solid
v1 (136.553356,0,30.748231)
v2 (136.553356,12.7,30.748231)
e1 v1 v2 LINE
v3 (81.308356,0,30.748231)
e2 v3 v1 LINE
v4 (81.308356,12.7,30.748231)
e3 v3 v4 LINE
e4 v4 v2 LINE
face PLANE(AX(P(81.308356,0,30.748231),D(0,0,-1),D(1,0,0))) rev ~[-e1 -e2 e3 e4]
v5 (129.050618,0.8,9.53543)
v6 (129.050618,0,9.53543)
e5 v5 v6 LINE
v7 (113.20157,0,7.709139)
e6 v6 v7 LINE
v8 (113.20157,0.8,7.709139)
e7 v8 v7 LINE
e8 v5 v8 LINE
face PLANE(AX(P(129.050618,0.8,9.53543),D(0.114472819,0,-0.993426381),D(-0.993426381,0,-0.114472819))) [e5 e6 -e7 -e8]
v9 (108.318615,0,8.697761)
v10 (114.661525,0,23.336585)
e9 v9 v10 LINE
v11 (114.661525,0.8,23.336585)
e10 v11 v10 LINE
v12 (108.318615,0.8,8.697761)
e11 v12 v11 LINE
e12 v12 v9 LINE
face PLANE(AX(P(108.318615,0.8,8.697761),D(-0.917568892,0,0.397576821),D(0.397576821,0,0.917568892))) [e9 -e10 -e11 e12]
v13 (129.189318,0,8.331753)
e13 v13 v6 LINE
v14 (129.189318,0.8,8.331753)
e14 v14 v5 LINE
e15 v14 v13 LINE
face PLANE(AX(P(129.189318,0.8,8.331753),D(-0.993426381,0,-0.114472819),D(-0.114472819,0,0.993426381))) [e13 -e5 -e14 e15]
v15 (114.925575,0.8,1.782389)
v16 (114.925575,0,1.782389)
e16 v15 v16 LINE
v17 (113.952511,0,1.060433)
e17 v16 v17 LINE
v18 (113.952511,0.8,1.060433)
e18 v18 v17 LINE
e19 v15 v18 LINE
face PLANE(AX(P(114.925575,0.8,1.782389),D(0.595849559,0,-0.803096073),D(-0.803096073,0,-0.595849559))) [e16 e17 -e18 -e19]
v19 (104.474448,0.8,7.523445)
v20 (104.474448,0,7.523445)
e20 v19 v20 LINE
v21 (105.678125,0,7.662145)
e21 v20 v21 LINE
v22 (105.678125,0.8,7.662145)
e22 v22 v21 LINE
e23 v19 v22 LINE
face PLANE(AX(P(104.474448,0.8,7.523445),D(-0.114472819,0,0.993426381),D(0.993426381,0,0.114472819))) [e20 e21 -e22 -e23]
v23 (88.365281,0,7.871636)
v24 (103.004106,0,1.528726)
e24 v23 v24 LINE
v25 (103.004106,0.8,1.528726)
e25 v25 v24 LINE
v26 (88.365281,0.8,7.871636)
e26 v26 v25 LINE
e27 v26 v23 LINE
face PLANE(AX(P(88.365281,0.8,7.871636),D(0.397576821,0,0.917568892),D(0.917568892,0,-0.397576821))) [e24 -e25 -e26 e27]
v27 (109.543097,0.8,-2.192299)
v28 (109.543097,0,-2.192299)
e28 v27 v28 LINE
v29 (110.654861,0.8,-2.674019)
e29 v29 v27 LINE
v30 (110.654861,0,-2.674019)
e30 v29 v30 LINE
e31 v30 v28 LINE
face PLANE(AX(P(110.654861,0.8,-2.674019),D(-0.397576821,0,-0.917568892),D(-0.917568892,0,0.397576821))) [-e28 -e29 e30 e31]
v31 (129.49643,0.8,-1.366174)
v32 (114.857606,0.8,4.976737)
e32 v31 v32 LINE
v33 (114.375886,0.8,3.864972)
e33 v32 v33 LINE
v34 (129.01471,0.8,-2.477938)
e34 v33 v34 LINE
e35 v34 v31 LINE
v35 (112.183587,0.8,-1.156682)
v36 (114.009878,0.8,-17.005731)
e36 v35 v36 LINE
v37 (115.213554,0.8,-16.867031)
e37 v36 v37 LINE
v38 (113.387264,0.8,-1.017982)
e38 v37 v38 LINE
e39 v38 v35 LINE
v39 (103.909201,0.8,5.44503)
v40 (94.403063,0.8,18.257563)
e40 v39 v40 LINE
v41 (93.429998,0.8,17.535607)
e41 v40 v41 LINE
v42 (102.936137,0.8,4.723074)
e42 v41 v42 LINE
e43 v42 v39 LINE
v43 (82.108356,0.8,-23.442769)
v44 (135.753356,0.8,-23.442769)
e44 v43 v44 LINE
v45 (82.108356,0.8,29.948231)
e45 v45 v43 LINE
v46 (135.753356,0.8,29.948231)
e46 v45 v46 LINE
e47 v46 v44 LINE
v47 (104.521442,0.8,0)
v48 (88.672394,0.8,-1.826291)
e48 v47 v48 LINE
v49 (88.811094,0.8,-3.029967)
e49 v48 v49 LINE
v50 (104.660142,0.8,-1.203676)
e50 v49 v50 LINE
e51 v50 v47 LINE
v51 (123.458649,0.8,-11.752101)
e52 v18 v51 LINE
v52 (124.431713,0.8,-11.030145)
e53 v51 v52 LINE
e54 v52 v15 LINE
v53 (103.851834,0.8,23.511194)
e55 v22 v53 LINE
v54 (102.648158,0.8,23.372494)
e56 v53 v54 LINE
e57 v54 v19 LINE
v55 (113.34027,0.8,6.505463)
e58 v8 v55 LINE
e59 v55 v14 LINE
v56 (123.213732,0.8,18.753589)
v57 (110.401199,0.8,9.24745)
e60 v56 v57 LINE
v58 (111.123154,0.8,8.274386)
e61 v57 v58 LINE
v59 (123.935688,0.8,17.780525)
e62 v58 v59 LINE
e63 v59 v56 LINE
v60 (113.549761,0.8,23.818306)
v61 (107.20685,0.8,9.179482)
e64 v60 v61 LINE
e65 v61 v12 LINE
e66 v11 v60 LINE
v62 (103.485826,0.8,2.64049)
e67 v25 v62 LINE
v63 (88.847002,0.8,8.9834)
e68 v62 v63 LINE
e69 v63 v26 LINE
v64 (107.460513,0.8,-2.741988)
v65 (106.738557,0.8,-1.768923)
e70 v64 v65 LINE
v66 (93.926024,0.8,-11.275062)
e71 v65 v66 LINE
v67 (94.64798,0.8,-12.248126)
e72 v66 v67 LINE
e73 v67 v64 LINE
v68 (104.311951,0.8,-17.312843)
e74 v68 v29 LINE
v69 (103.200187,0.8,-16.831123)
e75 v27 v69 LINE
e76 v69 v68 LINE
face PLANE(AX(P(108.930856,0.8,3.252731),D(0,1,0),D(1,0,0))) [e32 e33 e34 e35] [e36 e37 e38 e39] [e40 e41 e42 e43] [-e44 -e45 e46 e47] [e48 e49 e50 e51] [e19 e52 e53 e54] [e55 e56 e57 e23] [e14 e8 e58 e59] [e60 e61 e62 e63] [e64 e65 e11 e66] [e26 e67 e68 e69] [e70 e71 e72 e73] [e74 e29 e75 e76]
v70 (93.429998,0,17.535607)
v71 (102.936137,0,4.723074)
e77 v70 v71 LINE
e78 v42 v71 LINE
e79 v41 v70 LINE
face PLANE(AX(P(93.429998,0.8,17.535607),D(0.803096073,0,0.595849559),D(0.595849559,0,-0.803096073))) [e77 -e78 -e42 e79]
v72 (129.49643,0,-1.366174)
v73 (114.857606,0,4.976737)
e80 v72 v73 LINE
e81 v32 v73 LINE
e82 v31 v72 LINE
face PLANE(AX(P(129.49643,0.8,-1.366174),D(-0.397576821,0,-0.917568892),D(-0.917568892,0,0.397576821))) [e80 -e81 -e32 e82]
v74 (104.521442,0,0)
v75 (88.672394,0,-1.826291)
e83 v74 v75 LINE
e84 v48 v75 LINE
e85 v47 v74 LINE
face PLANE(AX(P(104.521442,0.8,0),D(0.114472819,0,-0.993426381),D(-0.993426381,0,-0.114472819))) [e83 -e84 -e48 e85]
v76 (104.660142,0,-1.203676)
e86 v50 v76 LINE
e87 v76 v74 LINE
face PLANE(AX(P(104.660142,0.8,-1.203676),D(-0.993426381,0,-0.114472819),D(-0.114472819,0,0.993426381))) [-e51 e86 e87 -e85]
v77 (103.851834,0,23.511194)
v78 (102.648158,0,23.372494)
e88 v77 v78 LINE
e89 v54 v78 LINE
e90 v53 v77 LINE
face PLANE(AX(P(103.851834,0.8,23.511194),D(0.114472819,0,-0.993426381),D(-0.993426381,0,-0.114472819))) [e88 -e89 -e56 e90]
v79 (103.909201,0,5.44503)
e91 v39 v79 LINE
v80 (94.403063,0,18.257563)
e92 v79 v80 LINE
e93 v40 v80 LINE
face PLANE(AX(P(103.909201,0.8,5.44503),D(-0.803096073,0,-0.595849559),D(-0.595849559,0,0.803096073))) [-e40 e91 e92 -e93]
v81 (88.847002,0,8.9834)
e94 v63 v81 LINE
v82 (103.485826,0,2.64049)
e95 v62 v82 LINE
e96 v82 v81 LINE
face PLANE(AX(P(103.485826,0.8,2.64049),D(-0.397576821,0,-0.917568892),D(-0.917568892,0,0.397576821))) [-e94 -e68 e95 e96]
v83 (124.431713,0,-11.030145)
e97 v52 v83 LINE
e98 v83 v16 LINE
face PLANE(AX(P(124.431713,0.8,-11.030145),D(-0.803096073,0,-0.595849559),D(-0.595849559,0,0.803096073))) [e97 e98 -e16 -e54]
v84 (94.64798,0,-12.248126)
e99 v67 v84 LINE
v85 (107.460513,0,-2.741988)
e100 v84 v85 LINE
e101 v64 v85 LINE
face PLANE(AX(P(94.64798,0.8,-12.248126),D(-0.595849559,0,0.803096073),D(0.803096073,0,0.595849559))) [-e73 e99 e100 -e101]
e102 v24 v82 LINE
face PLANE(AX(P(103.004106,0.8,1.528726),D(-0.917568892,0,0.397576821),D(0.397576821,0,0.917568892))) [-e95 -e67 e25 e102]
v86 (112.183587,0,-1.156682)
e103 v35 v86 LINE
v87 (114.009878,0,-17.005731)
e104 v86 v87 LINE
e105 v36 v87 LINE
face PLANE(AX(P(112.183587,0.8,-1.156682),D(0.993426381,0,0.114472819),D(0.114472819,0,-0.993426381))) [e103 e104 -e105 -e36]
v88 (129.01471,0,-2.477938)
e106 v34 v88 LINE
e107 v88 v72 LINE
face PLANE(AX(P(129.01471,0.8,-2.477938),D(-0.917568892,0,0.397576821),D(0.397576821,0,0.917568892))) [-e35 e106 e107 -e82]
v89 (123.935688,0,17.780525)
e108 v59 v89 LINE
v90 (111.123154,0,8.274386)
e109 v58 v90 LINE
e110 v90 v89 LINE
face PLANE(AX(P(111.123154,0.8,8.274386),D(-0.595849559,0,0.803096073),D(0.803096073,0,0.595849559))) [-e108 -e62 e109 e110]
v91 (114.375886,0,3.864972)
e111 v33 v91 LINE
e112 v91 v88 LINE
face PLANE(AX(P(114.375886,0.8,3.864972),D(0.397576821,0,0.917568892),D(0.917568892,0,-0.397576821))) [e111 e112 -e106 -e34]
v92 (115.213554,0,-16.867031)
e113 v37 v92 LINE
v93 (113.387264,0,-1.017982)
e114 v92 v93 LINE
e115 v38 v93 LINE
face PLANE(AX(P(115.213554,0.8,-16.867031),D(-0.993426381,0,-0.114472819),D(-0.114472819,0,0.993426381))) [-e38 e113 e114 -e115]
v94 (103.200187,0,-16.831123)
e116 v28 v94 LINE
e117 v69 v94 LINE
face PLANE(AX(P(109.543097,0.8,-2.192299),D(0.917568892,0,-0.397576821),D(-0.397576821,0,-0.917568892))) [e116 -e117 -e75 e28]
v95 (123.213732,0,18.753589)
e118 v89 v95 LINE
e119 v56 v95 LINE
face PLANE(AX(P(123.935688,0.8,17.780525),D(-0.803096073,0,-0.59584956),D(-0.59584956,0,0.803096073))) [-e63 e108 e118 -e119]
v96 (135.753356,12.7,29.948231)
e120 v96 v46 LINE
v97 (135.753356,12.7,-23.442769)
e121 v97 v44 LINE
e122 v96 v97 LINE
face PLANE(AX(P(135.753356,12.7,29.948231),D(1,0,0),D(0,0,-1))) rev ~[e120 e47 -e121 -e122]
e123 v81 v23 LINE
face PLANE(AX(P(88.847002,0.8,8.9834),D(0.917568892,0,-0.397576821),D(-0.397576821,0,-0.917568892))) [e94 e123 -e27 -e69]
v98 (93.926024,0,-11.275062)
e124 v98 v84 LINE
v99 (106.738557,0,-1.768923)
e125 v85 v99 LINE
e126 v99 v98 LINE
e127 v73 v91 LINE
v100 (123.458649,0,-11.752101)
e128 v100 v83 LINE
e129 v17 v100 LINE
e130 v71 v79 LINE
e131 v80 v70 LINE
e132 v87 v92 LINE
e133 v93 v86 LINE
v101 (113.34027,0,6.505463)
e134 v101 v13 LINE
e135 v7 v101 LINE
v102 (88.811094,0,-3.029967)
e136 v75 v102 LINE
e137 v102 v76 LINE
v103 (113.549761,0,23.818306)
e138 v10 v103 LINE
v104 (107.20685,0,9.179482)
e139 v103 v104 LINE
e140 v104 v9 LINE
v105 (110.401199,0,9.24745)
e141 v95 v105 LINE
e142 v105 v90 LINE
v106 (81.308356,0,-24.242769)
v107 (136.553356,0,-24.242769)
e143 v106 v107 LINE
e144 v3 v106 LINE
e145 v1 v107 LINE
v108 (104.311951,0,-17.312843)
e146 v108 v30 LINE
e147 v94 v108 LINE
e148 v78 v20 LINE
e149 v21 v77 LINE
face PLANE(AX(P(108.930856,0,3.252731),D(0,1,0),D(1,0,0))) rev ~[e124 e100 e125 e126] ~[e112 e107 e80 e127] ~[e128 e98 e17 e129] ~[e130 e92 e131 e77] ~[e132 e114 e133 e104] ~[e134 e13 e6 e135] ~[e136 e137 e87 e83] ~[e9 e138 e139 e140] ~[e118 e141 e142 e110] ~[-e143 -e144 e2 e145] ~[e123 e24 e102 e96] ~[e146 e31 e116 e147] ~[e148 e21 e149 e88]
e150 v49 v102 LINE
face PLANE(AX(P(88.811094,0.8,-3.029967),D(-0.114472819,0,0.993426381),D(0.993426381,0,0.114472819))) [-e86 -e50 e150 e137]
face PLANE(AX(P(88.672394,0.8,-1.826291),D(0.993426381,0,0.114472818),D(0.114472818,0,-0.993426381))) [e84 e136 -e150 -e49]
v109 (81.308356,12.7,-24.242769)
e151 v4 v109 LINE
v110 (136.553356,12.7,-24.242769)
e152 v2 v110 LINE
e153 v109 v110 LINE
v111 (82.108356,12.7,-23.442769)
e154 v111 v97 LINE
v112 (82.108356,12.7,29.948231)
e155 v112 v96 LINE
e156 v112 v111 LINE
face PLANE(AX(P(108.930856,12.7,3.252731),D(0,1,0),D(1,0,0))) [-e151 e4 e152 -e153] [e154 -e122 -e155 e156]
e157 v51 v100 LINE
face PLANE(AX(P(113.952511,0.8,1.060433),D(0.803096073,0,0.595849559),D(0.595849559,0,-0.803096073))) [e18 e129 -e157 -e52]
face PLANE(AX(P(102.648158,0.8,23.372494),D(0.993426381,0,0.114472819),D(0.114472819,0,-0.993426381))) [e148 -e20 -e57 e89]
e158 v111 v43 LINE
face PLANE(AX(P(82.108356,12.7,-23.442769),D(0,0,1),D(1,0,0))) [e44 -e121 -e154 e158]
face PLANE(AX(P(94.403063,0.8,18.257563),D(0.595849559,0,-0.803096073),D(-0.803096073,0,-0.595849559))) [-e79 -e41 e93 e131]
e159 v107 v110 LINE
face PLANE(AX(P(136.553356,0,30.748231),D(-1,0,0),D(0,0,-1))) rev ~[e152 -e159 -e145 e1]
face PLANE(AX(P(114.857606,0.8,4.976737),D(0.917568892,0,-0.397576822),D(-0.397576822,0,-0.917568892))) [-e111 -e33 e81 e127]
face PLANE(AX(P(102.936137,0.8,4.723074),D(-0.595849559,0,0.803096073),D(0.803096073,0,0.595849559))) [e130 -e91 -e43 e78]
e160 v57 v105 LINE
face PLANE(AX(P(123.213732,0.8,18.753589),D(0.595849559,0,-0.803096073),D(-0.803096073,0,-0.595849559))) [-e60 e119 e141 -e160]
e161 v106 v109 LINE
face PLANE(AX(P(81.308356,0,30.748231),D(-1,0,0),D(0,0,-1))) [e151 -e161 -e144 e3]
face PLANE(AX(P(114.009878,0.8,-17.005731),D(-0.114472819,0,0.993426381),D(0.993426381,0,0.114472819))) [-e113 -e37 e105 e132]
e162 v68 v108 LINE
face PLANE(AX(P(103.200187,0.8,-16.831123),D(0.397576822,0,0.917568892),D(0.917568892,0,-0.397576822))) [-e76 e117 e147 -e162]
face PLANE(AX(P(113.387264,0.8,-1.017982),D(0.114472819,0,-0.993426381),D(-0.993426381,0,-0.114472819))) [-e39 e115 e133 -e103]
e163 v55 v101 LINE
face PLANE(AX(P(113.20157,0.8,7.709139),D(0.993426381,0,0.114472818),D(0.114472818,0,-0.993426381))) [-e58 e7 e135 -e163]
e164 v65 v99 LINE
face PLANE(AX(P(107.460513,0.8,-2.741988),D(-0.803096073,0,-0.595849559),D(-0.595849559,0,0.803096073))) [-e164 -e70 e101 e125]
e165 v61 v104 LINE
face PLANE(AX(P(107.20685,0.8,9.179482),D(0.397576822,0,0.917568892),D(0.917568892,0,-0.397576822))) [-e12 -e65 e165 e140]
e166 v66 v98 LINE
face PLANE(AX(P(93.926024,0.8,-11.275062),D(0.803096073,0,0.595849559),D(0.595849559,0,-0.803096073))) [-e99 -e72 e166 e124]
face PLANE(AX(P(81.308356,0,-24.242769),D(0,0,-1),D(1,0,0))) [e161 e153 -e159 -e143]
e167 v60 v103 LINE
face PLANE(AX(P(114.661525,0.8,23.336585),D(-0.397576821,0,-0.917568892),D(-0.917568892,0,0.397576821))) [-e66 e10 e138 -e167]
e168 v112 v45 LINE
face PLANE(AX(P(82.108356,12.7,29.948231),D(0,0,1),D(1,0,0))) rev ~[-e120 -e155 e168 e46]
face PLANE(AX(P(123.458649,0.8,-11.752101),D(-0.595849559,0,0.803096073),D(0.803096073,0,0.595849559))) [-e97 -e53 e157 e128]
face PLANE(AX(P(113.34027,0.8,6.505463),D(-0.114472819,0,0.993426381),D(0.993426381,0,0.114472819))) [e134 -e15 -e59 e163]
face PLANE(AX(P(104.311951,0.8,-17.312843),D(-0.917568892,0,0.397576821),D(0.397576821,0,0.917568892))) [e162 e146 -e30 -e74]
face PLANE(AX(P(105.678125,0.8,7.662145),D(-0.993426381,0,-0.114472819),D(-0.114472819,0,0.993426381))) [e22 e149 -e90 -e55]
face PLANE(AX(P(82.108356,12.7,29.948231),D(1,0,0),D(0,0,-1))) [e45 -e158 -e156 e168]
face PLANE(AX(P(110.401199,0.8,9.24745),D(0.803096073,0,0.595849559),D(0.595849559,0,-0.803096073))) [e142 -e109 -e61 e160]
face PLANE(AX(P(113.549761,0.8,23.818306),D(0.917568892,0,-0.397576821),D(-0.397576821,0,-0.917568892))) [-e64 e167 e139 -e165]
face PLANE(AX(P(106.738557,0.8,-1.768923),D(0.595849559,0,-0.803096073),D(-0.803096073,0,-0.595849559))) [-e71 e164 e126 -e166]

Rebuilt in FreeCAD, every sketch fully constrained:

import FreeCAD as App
import Part
import Sketcher
from FreeCAD import Vector
Q = App.Units.Quantity


def add_polygon(sketch, points):
    """Adds a closed chain of lines whose ends are joined by coincident constraints."""
    first, n = sketch.GeometryCount, len(points)
    for a, b in zip(points, points[1:] + points[:1]):
        sketch.addGeometry(Part.LineSegment(App.Vector(*a, 0), App.Vector(*b, 0)), False)
    for i in range(n):
        sketch.addConstraint(Sketcher.Constraint("Coincident", first + i, 2, first + (i + 1) % n, 1))

doc = App.newDocument("Part")
body = doc.addObject("PartDesign::Body", "Body")

sketch1 = body.newObject("Sketcher::SketchObject", "Sketch")
sketch1.AttachmentSupport = (doc.getObject("XZ_Plane"), [""])
sketch1.MapMode = "FlatFace"
add_polygon(sketch1, [(81.308356, -24.242769), (81.308356, 30.748231), (136.553356, 30.748231), (136.553356, -24.242769)])
sketch1.addConstraint(Sketcher.Constraint("Vertical", 0))
sketch1.addConstraint(Sketcher.Constraint("Horizontal", 1))
sketch1.addConstraint(Sketcher.Constraint("Vertical", 2))
sketch1.addConstraint(Sketcher.Constraint("Horizontal", 3))
sketch1.addConstraint(Sketcher.Constraint("DistanceX", 1, 1, 1, 2, Q("2.175 in")))
sketch1.addConstraint(Sketcher.Constraint("DistanceY", 0, 1, 0, 2, Q("2.165 in")))
sketch1.addConstraint(Sketcher.Constraint("DistanceY", -1, 1, 0, 2, Q("30.748231 mm")))
sketch1.addConstraint(Sketcher.Constraint("DistanceX", -1, 1, 0, 2, Q("81.308356 mm")))
pad1 = body.newObject("PartDesign::Pad", "Pad")
pad1.Profile = sketch1
pad1.Length = Q("0.5 in")
pad1.Reversed = True

sketch2 = body.newObject("Sketcher::SketchObject", "Sketch001")
sketch2.AttachmentSupport = (doc.getObject("XZ_Plane"), [""])
sketch2.MapMode = "FlatFace"
sketch2.AttachmentOffset = App.Placement(Vector(0, 0, -0.5 * 25.4), App.Rotation())
add_polygon(sketch2, [(82.108356, -23.442769), (82.108356, 29.948231), (135.753356, 29.948231), (135.753356, -23.442769)])
sketch2.addConstraint(Sketcher.Constraint("Vertical", 0))
sketch2.addConstraint(Sketcher.Constraint("Horizontal", 1))
sketch2.addConstraint(Sketcher.Constraint("Vertical", 2))
sketch2.addConstraint(Sketcher.Constraint("Horizontal", 3))
sketch2.addConstraint(Sketcher.Constraint("DistanceX", 1, 1, 1, 2, Q("53.645 mm")))
sketch2.addConstraint(Sketcher.Constraint("DistanceY", 0, 1, 0, 2, Q("53.391 mm")))
sketch2.addConstraint(Sketcher.Constraint("DistanceY", -1, 1, 0, 2, Q("29.948231 mm")))
sketch2.addConstraint(Sketcher.Constraint("DistanceX", -1, 1, 0, 2, Q("82.108356 mm")))
pocket1 = body.newObject("PartDesign::Pocket", "Pocket")
pocket1.Profile = sketch2
pocket1.Length = 11.9
pocket1.Reversed = True

sketch3 = body.newObject("Sketcher::SketchObject", "Sketch002")
sketch3.AttachmentSupport = (doc.getObject("XZ_Plane"), [""])
sketch3.MapMode = "FlatFace"
sketch3.AttachmentOffset = App.Placement(Vector(0, 0, -0.8), App.Rotation())
add_polygon(sketch3, [(104.660142, -1.203676), (88.811094, -3.029967), (88.672394, -1.826291), (104.521442, 0)])
add_polygon(sketch3, [(107.460513, -2.741988), (94.64798, -12.248126), (93.926024, -11.275062), (106.738557, -1.768923)])
add_polygon(sketch3, [(110.654861, -2.674019), (104.311951, -17.312843), (103.200187, -16.831123), (109.543097, -2.192299)])
add_polygon(sketch3, [(113.387264, -1.017982), (115.213554, -16.867031), (114.009878, -17.005731), (112.183587, -1.156682)])
add_polygon(sketch3, [(114.925575, 1.782389), (124.431713, -11.030145), (123.458649, -11.752101), (113.952511, 1.060433)])
add_polygon(sketch3, [(114.857606, 4.976737), (129.49643, -1.366174), (129.01471, -2.477938), (114.375886, 3.864972)])
add_polygon(sketch3, [(113.20157, 7.709139), (129.050618, 9.53543), (129.189318, 8.331753), (113.34027, 6.505463)])
add_polygon(sketch3, [(110.401199, 9.24745), (123.213732, 18.753589), (123.935688, 17.780525), (111.123154, 8.274386)])
add_polygon(sketch3, [(107.20685, 9.179482), (113.549761, 23.818306), (114.661525, 23.336585), (108.318615, 8.697761)])
add_polygon(sketch3, [(104.474448, 7.523445), (102.648158, 23.372494), (103.851834, 23.511194), (105.678125, 7.662145)])
add_polygon(sketch3, [(102.936137, 4.723074), (93.429998, 17.535607), (94.403063, 18.257563), (103.909201, 5.44503)])
add_polygon(sketch3, [(103.004106, 1.528726), (88.365281, 7.871636), (88.847002, 8.9834), (103.485826, 2.64049)])
sketch3.addConstraint(Sketcher.Constraint("PointOnObject", 2, 2, -1))
sketch3.addConstraint(Sketcher.Constraint("Perpendicular", 0, 1))
sketch3.addConstraint(Sketcher.Constraint("Perpendicular", 1, 2))
sketch3.addConstraint(Sketcher.Constraint("Perpendicular", 2, 3))
sketch3.addConstraint(Sketcher.Constraint("Perpendicular", 4, 5))
sketch3.addConstraint(Sketcher.Constraint("Perpendicular", 5, 6))
sketch3.addConstraint(Sketcher.Constraint("Perpendicular", 6, 7))
sketch3.addConstraint(Sketcher.Constraint("Perpendicular", 8, 9))
sketch3.addConstraint(Sketcher.Constraint("Perpendicular", 9, 10))
sketch3.addConstraint(Sketcher.Constraint("Perpendicular", 10, 11))
sketch3.addConstraint(Sketcher.Constraint("Parallel", 3, 12))
sketch3.addConstraint(Sketcher.Constraint("Perpendicular", 12, 13))
sketch3.addConstraint(Sketcher.Constraint("Perpendicular", 13, 14))
sketch3.addConstraint(Sketcher.Constraint("Perpendicular", 14, 15))
sketch3.addConstraint(Sketcher.Constraint("Parallel", 7, 16))
sketch3.addConstraint(Sketcher.Constraint("Perpendicular", 16, 17))
sketch3.addConstraint(Sketcher.Constraint("Perpendicular", 17, 18))
sketch3.addConstraint(Sketcher.Constraint("Perpendicular", 18, 19))
sketch3.addConstraint(Sketcher.Constraint("Parallel", 11, 20))
sketch3.addConstraint(Sketcher.Constraint("Perpendicular", 20, 21))
sketch3.addConstraint(Sketcher.Constraint("Perpendicular", 21, 22))
sketch3.addConstraint(Sketcher.Constraint("Perpendicular", 22, 23))
sketch3.addConstraint(Sketcher.Constraint("Parallel", 15, 24))
sketch3.addConstraint(Sketcher.Constraint("Perpendicular", 24, 25))
sketch3.addConstraint(Sketcher.Constraint("Perpendicular", 25, 26))
sketch3.addConstraint(Sketcher.Constraint("Perpendicular", 26, 27))
sketch3.addConstraint(Sketcher.Constraint("Parallel", 19, 28))
sketch3.addConstraint(Sketcher.Constraint("Perpendicular", 28, 29))
sketch3.addConstraint(Sketcher.Constraint("Perpendicular", 29, 30))
sketch3.addConstraint(Sketcher.Constraint("Perpendicular", 30, 31))
sketch3.addConstraint(Sketcher.Constraint("Parallel", 23, 32))
sketch3.addConstraint(Sketcher.Constraint("Perpendicular", 32, 33))
sketch3.addConstraint(Sketcher.Constraint("Perpendicular", 33, 34))
sketch3.addConstraint(Sketcher.Constraint("Perpendicular", 34, 35))
sketch3.addConstraint(Sketcher.Constraint("Parallel", 27, 36))
sketch3.addConstraint(Sketcher.Constraint("Perpendicular", 36, 37))
sketch3.addConstraint(Sketcher.Constraint("Perpendicular", 37, 38))
sketch3.addConstraint(Sketcher.Constraint("Perpendicular", 38, 39))
sketch3.addConstraint(Sketcher.Constraint("Parallel", 31, 40))
sketch3.addConstraint(Sketcher.Constraint("Perpendicular", 40, 41))
sketch3.addConstraint(Sketcher.Constraint("Perpendicular", 41, 42))
sketch3.addConstraint(Sketcher.Constraint("Perpendicular", 42, 43))
sketch3.addConstraint(Sketcher.Constraint("Parallel", 35, 44))
sketch3.addConstraint(Sketcher.Constraint("Perpendicular", 44, 45))
sketch3.addConstraint(Sketcher.Constraint("Perpendicular", 45, 46))
sketch3.addConstraint(Sketcher.Constraint("Perpendicular", 46, 47))
sketch3.addConstraint(Sketcher.Constraint("Equal", 2, 4))
sketch3.addConstraint(Sketcher.Constraint("Equal", 3, 5))
sketch3.addConstraint(Sketcher.Constraint("Equal", 6, 8))
sketch3.addConstraint(Sketcher.Constraint("Equal", 7, 9))
sketch3.addConstraint(Sketcher.Constraint("Equal", 10, 12))
sketch3.addConstraint(Sketcher.Constraint("Equal", 11, 13))
sketch3.addConstraint(Sketcher.Constraint("Equal", 14, 16))
sketch3.addConstraint(Sketcher.Constraint("Equal", 15, 17))
sketch3.addConstraint(Sketcher.Constraint("Equal", 18, 20))
sketch3.addConstraint(Sketcher.Constraint("Equal", 19, 21))
sketch3.addConstraint(Sketcher.Constraint("Equal", 22, 24))
sketch3.addConstraint(Sketcher.Constraint("Equal", 23, 25))
sketch3.addConstraint(Sketcher.Constraint("Equal", 26, 28))
sketch3.addConstraint(Sketcher.Constraint("Equal", 27, 29))
sketch3.addConstraint(Sketcher.Constraint("Equal", 30, 32))
sketch3.addConstraint(Sketcher.Constraint("Equal", 31, 33))
sketch3.addConstraint(Sketcher.Constraint("Equal", 34, 36))
sketch3.addConstraint(Sketcher.Constraint("Equal", 35, 37))
sketch3.addConstraint(Sketcher.Constraint("Equal", 38, 40))
sketch3.addConstraint(Sketcher.Constraint("Equal", 39, 41))
sketch3.addConstraint(Sketcher.Constraint("Equal", 42, 44))
sketch3.addConstraint(Sketcher.Constraint("Equal", 43, 45))
sketch3.addConstraint(Sketcher.Constraint("DistanceY", 9, 2, 6, 2, Q("0.593 in")))
sketch3.addConstraint(Sketcher.Constraint("DistanceX", 18, 2, 21, 2, Q("0.593 in")))
sketch3.addConstraint(Sketcher.Constraint("DistanceY", 30, 2, 33, 2, Q("0.593 in")))
sketch3.addConstraint(Sketcher.Constraint("DistanceY", 5, 2, -1, 1, Q("0.4439001 in")))
sketch3.addConstraint(Sketcher.Constraint("DistanceX", 14, 2, 17, 2, Q("0.4439001 in")))
sketch3.addConstraint(Sketcher.Constraint("DistanceY", 26, 2, 29, 2, Q("0.4439001 in")))
sketch3.addConstraint(Sketcher.Constraint("DistanceX", 41, 2, 38, 2, Q("0.4439001 in")))
sketch3.addConstraint(Sketcher.Constraint("DistanceY", 10, 2, -1, 1, Q("2.192299 mm")))
sketch3.addConstraint(Sketcher.Constraint("DistanceY", 17, 2, -1, 1, Q("11.752101 mm")))
sketch3.addConstraint(Sketcher.Constraint("DistanceX", -1, 1, 31, 2, Q("110.401199 mm")))
sketch3.addConstraint(Sketcher.Constraint("DistanceX", -1, 1, 40, 2, Q("93.429998 mm")))
sketch3.addConstraint(Sketcher.Constraint("DistanceX", -1, 1, 42, 2, Q("103.909201 mm")))
sketch3.addConstraint(Sketcher.Constraint("DistanceX", -1, 1, 45, 2, Q("88.847002 mm")))
sketch3.addConstraint(Sketcher.Constraint("DistanceY", -1, 1, 45, 2, Q("8.9834 mm")))
sketch3.addConstraint(Sketcher.Constraint("DistanceX", 1, 2, 0, 2, Q("0.1387 mm")))
sketch3.addConstraint(Sketcher.Constraint("Distance", 1, Q("1.211641 mm")))
sketch3.addConstraint(Sketcher.Constraint("DistanceY", 1, 2, -1, 1, Q("1.826291 mm")))
sketch3.addConstraint(Sketcher.Constraint("DistanceX", -1, 1, 4, 2, Q("94.64798 mm")))
sketch3.addConstraint(Sketcher.Constraint("DistanceX", -1, 1, 8, 2, Q("104.311951 mm")))
sketch3.addConstraint(Sketcher.Constraint("DistanceY", 12, 2, -1, 1, Q("16.867031 mm")))
sketch3.addConstraint(Sketcher.Constraint("DistanceX", -1, 1, 17, 2, Q("123.458649 mm")))
sketch3.addConstraint(Sketcher.Constraint("DistanceX", -1, 1, 24, 2, Q("129.050618 mm")))
sketch3.addConstraint(Sketcher.Constraint("DistanceY", -1, 1, 24, 2, Q("9.53543 mm")))
sketch3.addConstraint(Sketcher.Constraint("DistanceX", -1, 1, 32, 2, Q("113.549761 mm")))
sketch3.addConstraint(Sketcher.Constraint("DistanceY", -1, 1, 42, 2, Q("5.44503 mm")))
sketch3.addConstraint(Sketcher.Constraint("DistanceX", 0, 2, 5, 2, Q("5.11493 mm")))
sketch3.addConstraint(Sketcher.Constraint("DistanceY", 16, 2, 20, 2, Q("9.663971 mm")))
sketch3.addConstraint(Sketcher.Constraint("DistanceY", 33, 2, 36, 2, Q("0.035908 mm")))
pocket2 = body.newObject("PartDesign::Pocket", "Pocket001")
pocket2.Profile = sketch3
pocket2.Length = 11.9
pocket2.Reversed = True

doc.recompute()
